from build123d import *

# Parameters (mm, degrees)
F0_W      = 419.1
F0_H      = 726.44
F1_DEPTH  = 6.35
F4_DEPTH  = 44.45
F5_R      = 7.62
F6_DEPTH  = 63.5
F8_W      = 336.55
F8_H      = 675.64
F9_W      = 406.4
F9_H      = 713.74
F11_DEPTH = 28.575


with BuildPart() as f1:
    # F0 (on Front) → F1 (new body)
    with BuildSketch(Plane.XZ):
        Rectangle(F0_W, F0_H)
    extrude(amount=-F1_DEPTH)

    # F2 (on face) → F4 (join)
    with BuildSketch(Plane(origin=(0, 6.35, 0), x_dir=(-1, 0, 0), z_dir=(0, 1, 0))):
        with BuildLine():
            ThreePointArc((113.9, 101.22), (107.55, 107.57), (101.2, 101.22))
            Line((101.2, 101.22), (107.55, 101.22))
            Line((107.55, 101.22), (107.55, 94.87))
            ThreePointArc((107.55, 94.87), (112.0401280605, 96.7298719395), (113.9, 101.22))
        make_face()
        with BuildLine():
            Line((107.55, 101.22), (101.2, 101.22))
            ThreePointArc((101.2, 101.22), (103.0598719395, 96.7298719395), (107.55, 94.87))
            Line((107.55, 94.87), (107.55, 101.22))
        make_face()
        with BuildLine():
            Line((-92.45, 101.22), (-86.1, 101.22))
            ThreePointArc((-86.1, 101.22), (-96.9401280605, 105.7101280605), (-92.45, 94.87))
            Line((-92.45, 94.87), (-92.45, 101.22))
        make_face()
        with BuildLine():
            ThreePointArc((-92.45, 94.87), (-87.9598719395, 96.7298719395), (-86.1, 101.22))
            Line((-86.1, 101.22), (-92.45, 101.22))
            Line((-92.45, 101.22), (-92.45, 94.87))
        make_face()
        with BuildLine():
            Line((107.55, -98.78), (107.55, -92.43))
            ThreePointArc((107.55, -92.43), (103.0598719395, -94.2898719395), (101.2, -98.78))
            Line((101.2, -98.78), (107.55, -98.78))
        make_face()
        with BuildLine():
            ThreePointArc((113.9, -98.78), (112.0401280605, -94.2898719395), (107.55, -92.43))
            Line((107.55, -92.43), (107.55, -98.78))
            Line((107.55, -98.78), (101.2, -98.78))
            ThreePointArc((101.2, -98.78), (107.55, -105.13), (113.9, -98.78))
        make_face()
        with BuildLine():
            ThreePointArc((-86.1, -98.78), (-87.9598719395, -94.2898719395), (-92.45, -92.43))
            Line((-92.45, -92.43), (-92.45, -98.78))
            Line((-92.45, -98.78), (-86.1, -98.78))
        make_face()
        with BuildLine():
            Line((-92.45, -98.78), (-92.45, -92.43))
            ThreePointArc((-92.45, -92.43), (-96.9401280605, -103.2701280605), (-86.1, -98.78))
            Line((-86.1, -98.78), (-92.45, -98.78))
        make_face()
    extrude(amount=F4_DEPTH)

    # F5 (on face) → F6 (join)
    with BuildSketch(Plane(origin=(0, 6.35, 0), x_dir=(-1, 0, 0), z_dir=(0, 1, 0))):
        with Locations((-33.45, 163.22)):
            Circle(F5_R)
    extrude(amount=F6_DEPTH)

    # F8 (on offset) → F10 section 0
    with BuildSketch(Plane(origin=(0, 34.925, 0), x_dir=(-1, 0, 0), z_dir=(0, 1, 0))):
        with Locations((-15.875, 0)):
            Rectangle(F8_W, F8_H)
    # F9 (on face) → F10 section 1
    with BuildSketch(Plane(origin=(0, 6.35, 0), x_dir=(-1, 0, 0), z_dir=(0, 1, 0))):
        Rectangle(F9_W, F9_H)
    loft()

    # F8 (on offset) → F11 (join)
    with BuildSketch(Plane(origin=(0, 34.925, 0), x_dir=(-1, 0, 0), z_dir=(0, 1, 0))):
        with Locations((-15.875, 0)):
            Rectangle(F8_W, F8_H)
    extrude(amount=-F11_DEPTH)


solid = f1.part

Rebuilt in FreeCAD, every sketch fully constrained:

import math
import FreeCAD as App
import Part
import Sketcher
Q = App.Units.Quantity

doc = App.newDocument("Part")
body = doc.addObject("PartDesign::Body", "Body")

sketch1 = body.newObject("Sketcher::SketchObject", "Sketch")
sketch1.AttachmentSupport = (doc.getObject("XZ_Plane"), [""])
sketch1.MapMode = "FlatFace"
sketch1.addGeometry([
    Part.LineSegment(App.Vector(-209.55, 363.22, 0), App.Vector(-209.55, -363.22, 0)),
    Part.LineSegment(App.Vector(-209.55, -363.22, 0), App.Vector(209.55, -363.22, 0)),
    Part.LineSegment(App.Vector(209.55, -363.22, 0), App.Vector(209.55, 363.22, 0)),
    Part.LineSegment(App.Vector(209.55, 363.22, 0), App.Vector(-209.55, 363.22, 0)),
], False)
sketch1.addConstraint([
    Sketcher.Constraint("Coincident", 0, 2, 1, 1),
    Sketcher.Constraint("Coincident", 1, 2, 2, 1),
    Sketcher.Constraint("Coincident", 2, 2, 3, 1),
    Sketcher.Constraint("Coincident", 3, 2, 0, 1),
    Sketcher.Constraint("Vertical", 0),
    Sketcher.Constraint("Horizontal", 1),
    Sketcher.Constraint("Vertical", 2),
    Sketcher.Constraint("Horizontal", 3),
    Sketcher.Constraint("Symmetric", 0, 2, 2, 2, -1, 1),
    Sketcher.Constraint("DistanceX", 1, 1, 1, 2, Q("16.5 in")),
    Sketcher.Constraint("DistanceY", 0, 2, 0, 1, Q("28.6 in")),
])
pad1 = body.newObject("PartDesign::Pad", "Pad")
pad1.Profile = sketch1
pad1.Length = Q("0.25 in")
pad1.Reversed = True

sketch2 = body.newObject("Sketcher::SketchObject", "Sketch001")
sketch2.AttachmentSupport = (doc.getObject("XZ_Plane"), [""])
sketch2.MapMode = "FlatFace"
sketch2.AttachmentOffset = App.Placement(App.Vector(0, 0, -0.25 * 25.4), App.Rotation())
sketch2.addGeometry([
    Part.ArcOfCircle(Part.Circle(App.Vector(-107.55, 101.22, 0), App.Vector(0, 0, 1), 6.35), math.radians(0), math.radians(180)),
    Part.ArcOfCircle(Part.Circle(App.Vector(-107.55, 101.22, 0), App.Vector(0, 0, 1), 6.35), math.radians(-90), math.radians(0)),
    Part.ArcOfCircle(Part.Circle(App.Vector(-107.55, 101.22, 0), App.Vector(0, 0, 1), 6.35), math.radians(180), math.radians(270)),
    Part.ArcOfCircle(Part.Circle(App.Vector(92.45, 101.22, 0), App.Vector(0, 0, 1), 6.35), math.radians(-90), math.radians(180)),
    Part.ArcOfCircle(Part.Circle(App.Vector(92.45, 101.22, 0), App.Vector(0, 0, 1), 6.35), math.radians(180), math.radians(270)),
    Part.ArcOfCircle(Part.Circle(App.Vector(-107.55, -98.78, 0), App.Vector(0, 0, 1), 6.35), math.radians(0), math.radians(90)),
    Part.ArcOfCircle(Part.Circle(App.Vector(-107.55, -98.78, 0), App.Vector(0, 0, 1), 6.35), math.radians(180), math.radians(360)),
    Part.ArcOfCircle(Part.Circle(App.Vector(-107.55, -98.78, 0), App.Vector(0, 0, 1), 6.35), math.radians(90), math.radians(180)),
    Part.ArcOfCircle(Part.Circle(App.Vector(92.45, -98.78, 0), App.Vector(0, 0, 1), 6.35), math.radians(90), math.radians(180)),
    Part.ArcOfCircle(Part.Circle(App.Vector(92.45, -98.78, 0), App.Vector(0, 0, 1), 6.35), math.radians(180), math.radians(450)),
], False)
sketch2.addConstraint([
    Sketcher.Constraint("Tangent", 0, 1, 1, 2),
    Sketcher.Constraint("Tangent", 1, 1, 2, 2),
    Sketcher.Constraint("Tangent", 2, 1, 0, 2),
    Sketcher.Constraint("Tangent", 3, 1, 4, 2),
    Sketcher.Constraint("Coincident", 4, 1, 3, 2),
    Sketcher.Constraint("Tangent", 5, 1, 6, 2),
    Sketcher.Constraint("Tangent", 6, 1, 7, 2),
    Sketcher.Constraint("Tangent", 7, 1, 5, 2),
    Sketcher.Constraint("Tangent", 8, 1, 9, 2),
    Sketcher.Constraint("Coincident", 9, 1, 8, 2),
    Sketcher.Constraint("Equal", 2, 3),
    Sketcher.Constraint("Equal", 4, 5),
    Sketcher.Constraint("Equal", 7, 8),
    Sketcher.Constraint("Horizontal", 2, 3, 3, 3),
    Sketcher.Constraint("Horizontal", 7, 3, 8, 3),
    Sketcher.Constraint("Horizontal", 4, 3, 0, 1),
    Sketcher.Constraint("Horizontal", 0, 1, 2, 1),
    Sketcher.Constraint("Horizontal", 2, 1, 4, 1),
    Sketcher.Constraint("Horizontal", 9, 3, 5, 1),
    Sketcher.Constraint("Horizontal", 5, 1, 6, 1),
    Sketcher.Constraint("Horizontal", 6, 1, 9, 1),
    Sketcher.Constraint("Vertical", 2, 3, 5, 3),
    Sketcher.Constraint("Vertical", 4, 3, 8, 3),
    Sketcher.Constraint("Vertical", 7, 3, 1, 1),
    Sketcher.Constraint("Vertical", 9, 3, 3, 1),
    Sketcher.Constraint("Vertical", 1, 1, 7, 1),
    Sketcher.Constraint("Vertical", 3, 1, 8, 1),
    Sketcher.Constraint("Radius", 0, Q("0.25 in")),
    Sketcher.Constraint("DistanceX", 0, 3, -1, 1, Q("107.55 mm")),
    Sketcher.Constraint("DistanceY", -1, 1, 0, 3, Q("101.22 mm")),
    Sketcher.Constraint("DistanceX", -1, 1, 3, 3, Q("92.45 mm")),
    Sketcher.Constraint("DistanceY", 5, 3, -1, 1, Q("98.78 mm")),
])
pad2 = body.newObject("PartDesign::Pad", "Pad001")
pad2.Profile = sketch2
pad2.Length = Q("1.75 in")
pad2.Reversed = True

sketch3 = body.newObject("Sketcher::SketchObject", "Sketch002")
sketch3.AttachmentSupport = (doc.getObject("XZ_Plane"), [""])
sketch3.MapMode = "FlatFace"
sketch3.AttachmentOffset = App.Placement(App.Vector(0, 0, -0.25 * 25.4), App.Rotation())
sketch3.addGeometry(Part.Circle(App.Vector(33.45, 163.22, 0), App.Vector(0, 0, 1), 7.62), False)
sketch3.addConstraint([
    Sketcher.Constraint("Diameter", 0, Q("0.6 in")),
    Sketcher.Constraint("DistanceX", -1, 1, 0, 3, Q("33.45 mm")),
    Sketcher.Constraint("DistanceY", -1, 1, 0, 3, Q("163.22 mm")),
])
pad3 = body.newObject("PartDesign::Pad", "Pad002")
pad3.Profile = sketch3
pad3.Length = Q("2.5 in")
pad3.Reversed = True

sketch4 = body.newObject("Sketcher::SketchObject", "Sketch003")
sketch4.AttachmentSupport = (doc.getObject("XZ_Plane"), [""])
sketch4.MapMode = "FlatFace"
sketch4.AttachmentOffset = App.Placement(App.Vector(0, 0, -1.375 * 25.4), App.Rotation())
sketch4.addGeometry([
    Part.LineSegment(App.Vector(184.15, 337.82, 0), App.Vector(184.15, -337.82, 0)),
    Part.LineSegment(App.Vector(184.15, -337.82, 0), App.Vector(-152.4, -337.82, 0)),
    Part.LineSegment(App.Vector(-152.4, -337.82, 0), App.Vector(-152.4, 337.82, 0)),
    Part.LineSegment(App.Vector(-152.4, 337.82, 0), App.Vector(184.15, 337.82, 0)),
], False)
sketch4.addConstraint([
    Sketcher.Constraint("Coincident", 0, 2, 1, 1),
    Sketcher.Constraint("Coincident", 1, 2, 2, 1),
    Sketcher.Constraint("Coincident", 2, 2, 3, 1),
    Sketcher.Constraint("Coincident", 3, 2, 0, 1),
    Sketcher.Constraint("Vertical", 0),
    Sketcher.Constraint("Horizontal", 1),
    Sketcher.Constraint("Vertical", 2),
    Sketcher.Constraint("Horizontal", 3),
    Sketcher.Constraint("DistanceY", 0, 2, 0, 1, Q("26.6 in")),
    Sketcher.Constraint("DistanceX", 1, 2, -1, 1, Q("6 in")),
    Sketcher.Constraint("DistanceX", 1, 2, 1, 1, Q("13.25 in")),
    Sketcher.Constraint("DistanceY", 0, 2, -1, 1, Q("13.3 in")),
])

sketch5 = body.newObject("Sketcher::SketchObject", "Sketch004")
sketch5.AttachmentSupport = (doc.getObject("XZ_Plane"), [""])
sketch5.MapMode = "FlatFace"
sketch5.AttachmentOffset = App.Placement(App.Vector(0, 0, -0.25 * 25.4), App.Rotation())
sketch5.addGeometry([
    Part.LineSegment(App.Vector(203.2, 356.87, 0), App.Vector(203.2, -356.87, 0)),
    Part.LineSegment(App.Vector(203.2, -356.87, 0), App.Vector(-203.2, -356.87, 0)),
    Part.LineSegment(App.Vector(-203.2, -356.87, 0), App.Vector(-203.2, 356.87, 0)),
    Part.LineSegment(App.Vector(-203.2, 356.87, 0), App.Vector(203.2, 356.87, 0)),
], False)
sketch5.addConstraint([
    Sketcher.Constraint("Coincident", 0, 2, 1, 1),
    Sketcher.Constraint("Coincident", 1, 2, 2, 1),
    Sketcher.Constraint("Coincident", 2, 2, 3, 1),
    Sketcher.Constraint("Coincident", 3, 2, 0, 1),
    Sketcher.Constraint("Vertical", 0),
    Sketcher.Constraint("Horizontal", 1),
    Sketcher.Constraint("Vertical", 2),
    Sketcher.Constraint("Horizontal", 3),
    Sketcher.Constraint("Symmetric", 0, 2, 2, 2, -1, 1),
    Sketcher.Constraint("DistanceX", 1, 2, 1, 1, Q("16 in")),
    Sketcher.Constraint("DistanceY", 0, 2, 0, 1, Q("28.1 in")),
])

additiveloft = body.newObject("PartDesign::AdditiveLoft", "AdditiveLoft")
additiveloft.Profile = sketch4
additiveloft.Sections = [sketch5]

sketch6 = body.newObject("Sketcher::SketchObject", "Sketch005")
sketch6.AttachmentSupport = (doc.getObject("XZ_Plane"), [""])
sketch6.MapMode = "FlatFace"
sketch6.AttachmentOffset = App.Placement(App.Vector(0, 0, -1.375 * 25.4), App.Rotation())
sketch6.addGeometry([
    Part.LineSegment(App.Vector(184.15, 337.82, 0), App.Vector(184.15, -337.82, 0)),
    Part.LineSegment(App.Vector(184.15, -337.82, 0), App.Vector(-152.4, -337.82, 0)),
    Part.LineSegment(App.Vector(-152.4, -337.82, 0), App.Vector(-152.4, 337.82, 0)),
    Part.LineSegment(App.Vector(-152.4, 337.82, 0), App.Vector(184.15, 337.82, 0)),
], False)
sketch6.addConstraint([
    Sketcher.Constraint("Coincident", 0, 2, 1, 1),
    Sketcher.Constraint("Coincident", 1, 2, 2, 1),
    Sketcher.Constraint("Coincident", 2, 2, 3, 1),
    Sketcher.Constraint("Coincident", 3, 2, 0, 1),
    Sketcher.Constraint("Vertical", 0),
    Sketcher.Constraint("Horizontal", 1),
    Sketcher.Constraint("Vertical", 2),
    Sketcher.Constraint("Horizontal", 3),
    Sketcher.Constraint("DistanceY", 0, 2, 0, 1, Q("26.6 in")),
    Sketcher.Constraint("DistanceX", 1, 2, -1, 1, Q("6 in")),
    Sketcher.Constraint("DistanceX", 1, 2, 1, 1, Q("13.25 in")),
    Sketcher.Constraint("DistanceY", 0, 2, -1, 1, Q("13.3 in")),
])
pad4 = body.newObject("PartDesign::Pad", "Pad003")
pad4.Profile = sketch6
pad4.Length = Q("1.125 in")

doc.recompute()
